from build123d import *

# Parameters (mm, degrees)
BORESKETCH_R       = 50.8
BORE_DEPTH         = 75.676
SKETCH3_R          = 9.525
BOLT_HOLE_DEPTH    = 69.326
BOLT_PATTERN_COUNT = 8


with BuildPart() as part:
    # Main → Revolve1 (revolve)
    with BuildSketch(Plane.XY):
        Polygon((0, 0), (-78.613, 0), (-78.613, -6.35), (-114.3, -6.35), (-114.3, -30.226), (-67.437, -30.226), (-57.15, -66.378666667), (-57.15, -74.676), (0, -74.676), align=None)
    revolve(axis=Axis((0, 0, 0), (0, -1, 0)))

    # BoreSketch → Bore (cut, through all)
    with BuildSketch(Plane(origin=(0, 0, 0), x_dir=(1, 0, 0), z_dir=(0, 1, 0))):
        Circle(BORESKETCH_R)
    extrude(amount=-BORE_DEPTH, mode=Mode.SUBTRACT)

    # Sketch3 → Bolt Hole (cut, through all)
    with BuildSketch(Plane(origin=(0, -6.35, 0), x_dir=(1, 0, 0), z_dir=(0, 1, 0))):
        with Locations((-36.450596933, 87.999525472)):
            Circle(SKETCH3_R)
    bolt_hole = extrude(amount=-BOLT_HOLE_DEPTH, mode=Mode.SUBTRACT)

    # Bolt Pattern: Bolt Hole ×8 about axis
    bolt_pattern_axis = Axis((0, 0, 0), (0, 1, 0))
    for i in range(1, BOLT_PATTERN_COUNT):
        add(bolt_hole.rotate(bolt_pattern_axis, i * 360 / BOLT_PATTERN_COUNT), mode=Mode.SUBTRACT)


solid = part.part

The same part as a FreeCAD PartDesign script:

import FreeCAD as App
import Part
import Sketcher

V = App.Vector
Q = App.Units.Quantity

doc = App.newDocument("Part")
body = doc.addObject("PartDesign::Body", "Body")

sketch1 = body.newObject("Sketcher::SketchObject", "Sketch")
sketch1.AttachmentSupport = (doc.getObject("XY_Plane"), [""])
sketch1.MapMode = "FlatFace"
sketch1.addGeometry([
    Part.LineSegment(V(0, 0, 0), V(-79, 0, 0)),
    Part.LineSegment(V(-79, 0, 0), V(-79, -6, 0)),
    Part.LineSegment(V(-79, -6, 0), V(-114, -6, 0)),
    Part.LineSegment(V(-114, -6, 0), V(-114, -30, 0)),
    Part.LineSegment(V(-114, -30, 0), V(-67, -30, 0)),
    Part.LineSegment(V(-67, -30, 0), V(-57, -66, 0)),
    Part.LineSegment(V(-57, -66, 0), V(-57, -75, 0)),
    Part.LineSegment(V(-57, -75, 0), V(0, -75, 0)),
    Part.LineSegment(V(0, -75, 0), V(0, 0, 0)),
], False)
sketch1.addConstraint([
    Sketcher.Constraint("Coincident", 0, 2, 1, 1),
    Sketcher.Constraint("Coincident", 1, 2, 2, 1),
    Sketcher.Constraint("Coincident", 2, 2, 3, 1),
    Sketcher.Constraint("Coincident", 3, 2, 4, 1),
    Sketcher.Constraint("Coincident", 4, 2, 5, 1),
    Sketcher.Constraint("Coincident", 5, 2, 6, 1),
    Sketcher.Constraint("Coincident", 6, 2, 7, 1),
    Sketcher.Constraint("Coincident", 7, 2, 8, 1),
    Sketcher.Constraint("Coincident", 8, 2, 0, 1),
    Sketcher.Constraint("Horizontal", 0),
    Sketcher.Constraint("Vertical", 1),
    Sketcher.Constraint("Horizontal", 2),
    Sketcher.Constraint("Vertical", 3),
    Sketcher.Constraint("Horizontal", 4),
    Sketcher.Constraint("Vertical", 6),
    Sketcher.Constraint("Horizontal", 7),
    Sketcher.Constraint("Vertical", 8),
    Sketcher.Constraint("Coincident", 8, 2, -1, 1),
    Sketcher.Constraint("DistanceX", 7, 1, 7, 2, Q("2.25 in")),
    Sketcher.Constraint("DistanceY", 1, 2, 1, 1, Q("0.25 in")),
    Sketcher.Constraint("DistanceY", 3, 2, 3, 1, Q("0.94 in")),
    Sketcher.Constraint("DistanceY", 8, 1, 8, 2, Q("2.94 in")),
    Sketcher.Constraint("DistanceX", 2, 2, -1, 1, Q("4.5 in")),
    Sketcher.Constraint("DistanceX", 0, 2, 0, 1, Q("3.095 in")),
    Sketcher.Constraint("DistanceX", 4, 1, 4, 2, Q("1.845 in")),
    Sketcher.Constraint("DistanceY", 6, 2, 6, 1, 8.297333),
])
revolution = body.newObject("PartDesign::Revolution", "Revolution")
revolution.Profile = sketch1
revolution.ReferenceAxis = (sketch1, ["V_Axis"])
revolution.Angle = 360

sketch2 = body.newObject("Sketcher::SketchObject", "Sketch001")
sketch2.AttachmentSupport = (doc.getObject("XZ_Plane"), [""])
sketch2.MapMode = "FlatFace"
sketch2.addGeometry(Part.Circle(V(0, 0, 0), V(0, 0, 1), 51), False)
sketch2.addConstraint([
    Sketcher.Constraint("Coincident", 0, 3, -1, 1),
    Sketcher.Constraint("Diameter", 0, Q("4 in")),
])
pocket1 = body.newObject("PartDesign::Pocket", "Pocket")
pocket1.Profile = sketch2
pocket1.Type = "ThroughAll"
pocket1.Reversed = True

sketch3 = body.newObject("Sketcher::SketchObject", "Sketch002")
sketch3.AttachmentSupport = (doc.getObject("XZ_Plane"), [""])
sketch3.MapMode = "FlatFace"
sketch3.AttachmentOffset = App.Placement(V(0, 0, 0.25 * 25.4), App.Rotation())
sketch3.addGeometry(Part.Circle(V(-36, -88, 0), V(0, 0, 1), 10), False)
sketch3.addConstraint([
    Sketcher.Constraint("Diameter", 0, Q("0.75 in")),
    Sketcher.Constraint("DistanceX", 0, 3, -1, 1, 36.450597),
    Sketcher.Constraint("DistanceY", 0, 3, -1, 1, 87.999525),
])
pocket2 = body.newObject("PartDesign::Pocket", "Pocket001")
pocket2.Profile = sketch3
pocket2.Type = "ThroughAll"
pocket2.Reversed = True
doc.recompute()

polarpattern = body.newObject("PartDesign::PolarPattern", "PolarPattern")
polarpattern.Originals = [pocket2]
polarpattern.Axis = (doc.getObject("Y_Axis"), [""])
polarpattern.Angle = 360
polarpattern.Occurrences = 8
body.Tip = polarpattern

doc.recompute()
